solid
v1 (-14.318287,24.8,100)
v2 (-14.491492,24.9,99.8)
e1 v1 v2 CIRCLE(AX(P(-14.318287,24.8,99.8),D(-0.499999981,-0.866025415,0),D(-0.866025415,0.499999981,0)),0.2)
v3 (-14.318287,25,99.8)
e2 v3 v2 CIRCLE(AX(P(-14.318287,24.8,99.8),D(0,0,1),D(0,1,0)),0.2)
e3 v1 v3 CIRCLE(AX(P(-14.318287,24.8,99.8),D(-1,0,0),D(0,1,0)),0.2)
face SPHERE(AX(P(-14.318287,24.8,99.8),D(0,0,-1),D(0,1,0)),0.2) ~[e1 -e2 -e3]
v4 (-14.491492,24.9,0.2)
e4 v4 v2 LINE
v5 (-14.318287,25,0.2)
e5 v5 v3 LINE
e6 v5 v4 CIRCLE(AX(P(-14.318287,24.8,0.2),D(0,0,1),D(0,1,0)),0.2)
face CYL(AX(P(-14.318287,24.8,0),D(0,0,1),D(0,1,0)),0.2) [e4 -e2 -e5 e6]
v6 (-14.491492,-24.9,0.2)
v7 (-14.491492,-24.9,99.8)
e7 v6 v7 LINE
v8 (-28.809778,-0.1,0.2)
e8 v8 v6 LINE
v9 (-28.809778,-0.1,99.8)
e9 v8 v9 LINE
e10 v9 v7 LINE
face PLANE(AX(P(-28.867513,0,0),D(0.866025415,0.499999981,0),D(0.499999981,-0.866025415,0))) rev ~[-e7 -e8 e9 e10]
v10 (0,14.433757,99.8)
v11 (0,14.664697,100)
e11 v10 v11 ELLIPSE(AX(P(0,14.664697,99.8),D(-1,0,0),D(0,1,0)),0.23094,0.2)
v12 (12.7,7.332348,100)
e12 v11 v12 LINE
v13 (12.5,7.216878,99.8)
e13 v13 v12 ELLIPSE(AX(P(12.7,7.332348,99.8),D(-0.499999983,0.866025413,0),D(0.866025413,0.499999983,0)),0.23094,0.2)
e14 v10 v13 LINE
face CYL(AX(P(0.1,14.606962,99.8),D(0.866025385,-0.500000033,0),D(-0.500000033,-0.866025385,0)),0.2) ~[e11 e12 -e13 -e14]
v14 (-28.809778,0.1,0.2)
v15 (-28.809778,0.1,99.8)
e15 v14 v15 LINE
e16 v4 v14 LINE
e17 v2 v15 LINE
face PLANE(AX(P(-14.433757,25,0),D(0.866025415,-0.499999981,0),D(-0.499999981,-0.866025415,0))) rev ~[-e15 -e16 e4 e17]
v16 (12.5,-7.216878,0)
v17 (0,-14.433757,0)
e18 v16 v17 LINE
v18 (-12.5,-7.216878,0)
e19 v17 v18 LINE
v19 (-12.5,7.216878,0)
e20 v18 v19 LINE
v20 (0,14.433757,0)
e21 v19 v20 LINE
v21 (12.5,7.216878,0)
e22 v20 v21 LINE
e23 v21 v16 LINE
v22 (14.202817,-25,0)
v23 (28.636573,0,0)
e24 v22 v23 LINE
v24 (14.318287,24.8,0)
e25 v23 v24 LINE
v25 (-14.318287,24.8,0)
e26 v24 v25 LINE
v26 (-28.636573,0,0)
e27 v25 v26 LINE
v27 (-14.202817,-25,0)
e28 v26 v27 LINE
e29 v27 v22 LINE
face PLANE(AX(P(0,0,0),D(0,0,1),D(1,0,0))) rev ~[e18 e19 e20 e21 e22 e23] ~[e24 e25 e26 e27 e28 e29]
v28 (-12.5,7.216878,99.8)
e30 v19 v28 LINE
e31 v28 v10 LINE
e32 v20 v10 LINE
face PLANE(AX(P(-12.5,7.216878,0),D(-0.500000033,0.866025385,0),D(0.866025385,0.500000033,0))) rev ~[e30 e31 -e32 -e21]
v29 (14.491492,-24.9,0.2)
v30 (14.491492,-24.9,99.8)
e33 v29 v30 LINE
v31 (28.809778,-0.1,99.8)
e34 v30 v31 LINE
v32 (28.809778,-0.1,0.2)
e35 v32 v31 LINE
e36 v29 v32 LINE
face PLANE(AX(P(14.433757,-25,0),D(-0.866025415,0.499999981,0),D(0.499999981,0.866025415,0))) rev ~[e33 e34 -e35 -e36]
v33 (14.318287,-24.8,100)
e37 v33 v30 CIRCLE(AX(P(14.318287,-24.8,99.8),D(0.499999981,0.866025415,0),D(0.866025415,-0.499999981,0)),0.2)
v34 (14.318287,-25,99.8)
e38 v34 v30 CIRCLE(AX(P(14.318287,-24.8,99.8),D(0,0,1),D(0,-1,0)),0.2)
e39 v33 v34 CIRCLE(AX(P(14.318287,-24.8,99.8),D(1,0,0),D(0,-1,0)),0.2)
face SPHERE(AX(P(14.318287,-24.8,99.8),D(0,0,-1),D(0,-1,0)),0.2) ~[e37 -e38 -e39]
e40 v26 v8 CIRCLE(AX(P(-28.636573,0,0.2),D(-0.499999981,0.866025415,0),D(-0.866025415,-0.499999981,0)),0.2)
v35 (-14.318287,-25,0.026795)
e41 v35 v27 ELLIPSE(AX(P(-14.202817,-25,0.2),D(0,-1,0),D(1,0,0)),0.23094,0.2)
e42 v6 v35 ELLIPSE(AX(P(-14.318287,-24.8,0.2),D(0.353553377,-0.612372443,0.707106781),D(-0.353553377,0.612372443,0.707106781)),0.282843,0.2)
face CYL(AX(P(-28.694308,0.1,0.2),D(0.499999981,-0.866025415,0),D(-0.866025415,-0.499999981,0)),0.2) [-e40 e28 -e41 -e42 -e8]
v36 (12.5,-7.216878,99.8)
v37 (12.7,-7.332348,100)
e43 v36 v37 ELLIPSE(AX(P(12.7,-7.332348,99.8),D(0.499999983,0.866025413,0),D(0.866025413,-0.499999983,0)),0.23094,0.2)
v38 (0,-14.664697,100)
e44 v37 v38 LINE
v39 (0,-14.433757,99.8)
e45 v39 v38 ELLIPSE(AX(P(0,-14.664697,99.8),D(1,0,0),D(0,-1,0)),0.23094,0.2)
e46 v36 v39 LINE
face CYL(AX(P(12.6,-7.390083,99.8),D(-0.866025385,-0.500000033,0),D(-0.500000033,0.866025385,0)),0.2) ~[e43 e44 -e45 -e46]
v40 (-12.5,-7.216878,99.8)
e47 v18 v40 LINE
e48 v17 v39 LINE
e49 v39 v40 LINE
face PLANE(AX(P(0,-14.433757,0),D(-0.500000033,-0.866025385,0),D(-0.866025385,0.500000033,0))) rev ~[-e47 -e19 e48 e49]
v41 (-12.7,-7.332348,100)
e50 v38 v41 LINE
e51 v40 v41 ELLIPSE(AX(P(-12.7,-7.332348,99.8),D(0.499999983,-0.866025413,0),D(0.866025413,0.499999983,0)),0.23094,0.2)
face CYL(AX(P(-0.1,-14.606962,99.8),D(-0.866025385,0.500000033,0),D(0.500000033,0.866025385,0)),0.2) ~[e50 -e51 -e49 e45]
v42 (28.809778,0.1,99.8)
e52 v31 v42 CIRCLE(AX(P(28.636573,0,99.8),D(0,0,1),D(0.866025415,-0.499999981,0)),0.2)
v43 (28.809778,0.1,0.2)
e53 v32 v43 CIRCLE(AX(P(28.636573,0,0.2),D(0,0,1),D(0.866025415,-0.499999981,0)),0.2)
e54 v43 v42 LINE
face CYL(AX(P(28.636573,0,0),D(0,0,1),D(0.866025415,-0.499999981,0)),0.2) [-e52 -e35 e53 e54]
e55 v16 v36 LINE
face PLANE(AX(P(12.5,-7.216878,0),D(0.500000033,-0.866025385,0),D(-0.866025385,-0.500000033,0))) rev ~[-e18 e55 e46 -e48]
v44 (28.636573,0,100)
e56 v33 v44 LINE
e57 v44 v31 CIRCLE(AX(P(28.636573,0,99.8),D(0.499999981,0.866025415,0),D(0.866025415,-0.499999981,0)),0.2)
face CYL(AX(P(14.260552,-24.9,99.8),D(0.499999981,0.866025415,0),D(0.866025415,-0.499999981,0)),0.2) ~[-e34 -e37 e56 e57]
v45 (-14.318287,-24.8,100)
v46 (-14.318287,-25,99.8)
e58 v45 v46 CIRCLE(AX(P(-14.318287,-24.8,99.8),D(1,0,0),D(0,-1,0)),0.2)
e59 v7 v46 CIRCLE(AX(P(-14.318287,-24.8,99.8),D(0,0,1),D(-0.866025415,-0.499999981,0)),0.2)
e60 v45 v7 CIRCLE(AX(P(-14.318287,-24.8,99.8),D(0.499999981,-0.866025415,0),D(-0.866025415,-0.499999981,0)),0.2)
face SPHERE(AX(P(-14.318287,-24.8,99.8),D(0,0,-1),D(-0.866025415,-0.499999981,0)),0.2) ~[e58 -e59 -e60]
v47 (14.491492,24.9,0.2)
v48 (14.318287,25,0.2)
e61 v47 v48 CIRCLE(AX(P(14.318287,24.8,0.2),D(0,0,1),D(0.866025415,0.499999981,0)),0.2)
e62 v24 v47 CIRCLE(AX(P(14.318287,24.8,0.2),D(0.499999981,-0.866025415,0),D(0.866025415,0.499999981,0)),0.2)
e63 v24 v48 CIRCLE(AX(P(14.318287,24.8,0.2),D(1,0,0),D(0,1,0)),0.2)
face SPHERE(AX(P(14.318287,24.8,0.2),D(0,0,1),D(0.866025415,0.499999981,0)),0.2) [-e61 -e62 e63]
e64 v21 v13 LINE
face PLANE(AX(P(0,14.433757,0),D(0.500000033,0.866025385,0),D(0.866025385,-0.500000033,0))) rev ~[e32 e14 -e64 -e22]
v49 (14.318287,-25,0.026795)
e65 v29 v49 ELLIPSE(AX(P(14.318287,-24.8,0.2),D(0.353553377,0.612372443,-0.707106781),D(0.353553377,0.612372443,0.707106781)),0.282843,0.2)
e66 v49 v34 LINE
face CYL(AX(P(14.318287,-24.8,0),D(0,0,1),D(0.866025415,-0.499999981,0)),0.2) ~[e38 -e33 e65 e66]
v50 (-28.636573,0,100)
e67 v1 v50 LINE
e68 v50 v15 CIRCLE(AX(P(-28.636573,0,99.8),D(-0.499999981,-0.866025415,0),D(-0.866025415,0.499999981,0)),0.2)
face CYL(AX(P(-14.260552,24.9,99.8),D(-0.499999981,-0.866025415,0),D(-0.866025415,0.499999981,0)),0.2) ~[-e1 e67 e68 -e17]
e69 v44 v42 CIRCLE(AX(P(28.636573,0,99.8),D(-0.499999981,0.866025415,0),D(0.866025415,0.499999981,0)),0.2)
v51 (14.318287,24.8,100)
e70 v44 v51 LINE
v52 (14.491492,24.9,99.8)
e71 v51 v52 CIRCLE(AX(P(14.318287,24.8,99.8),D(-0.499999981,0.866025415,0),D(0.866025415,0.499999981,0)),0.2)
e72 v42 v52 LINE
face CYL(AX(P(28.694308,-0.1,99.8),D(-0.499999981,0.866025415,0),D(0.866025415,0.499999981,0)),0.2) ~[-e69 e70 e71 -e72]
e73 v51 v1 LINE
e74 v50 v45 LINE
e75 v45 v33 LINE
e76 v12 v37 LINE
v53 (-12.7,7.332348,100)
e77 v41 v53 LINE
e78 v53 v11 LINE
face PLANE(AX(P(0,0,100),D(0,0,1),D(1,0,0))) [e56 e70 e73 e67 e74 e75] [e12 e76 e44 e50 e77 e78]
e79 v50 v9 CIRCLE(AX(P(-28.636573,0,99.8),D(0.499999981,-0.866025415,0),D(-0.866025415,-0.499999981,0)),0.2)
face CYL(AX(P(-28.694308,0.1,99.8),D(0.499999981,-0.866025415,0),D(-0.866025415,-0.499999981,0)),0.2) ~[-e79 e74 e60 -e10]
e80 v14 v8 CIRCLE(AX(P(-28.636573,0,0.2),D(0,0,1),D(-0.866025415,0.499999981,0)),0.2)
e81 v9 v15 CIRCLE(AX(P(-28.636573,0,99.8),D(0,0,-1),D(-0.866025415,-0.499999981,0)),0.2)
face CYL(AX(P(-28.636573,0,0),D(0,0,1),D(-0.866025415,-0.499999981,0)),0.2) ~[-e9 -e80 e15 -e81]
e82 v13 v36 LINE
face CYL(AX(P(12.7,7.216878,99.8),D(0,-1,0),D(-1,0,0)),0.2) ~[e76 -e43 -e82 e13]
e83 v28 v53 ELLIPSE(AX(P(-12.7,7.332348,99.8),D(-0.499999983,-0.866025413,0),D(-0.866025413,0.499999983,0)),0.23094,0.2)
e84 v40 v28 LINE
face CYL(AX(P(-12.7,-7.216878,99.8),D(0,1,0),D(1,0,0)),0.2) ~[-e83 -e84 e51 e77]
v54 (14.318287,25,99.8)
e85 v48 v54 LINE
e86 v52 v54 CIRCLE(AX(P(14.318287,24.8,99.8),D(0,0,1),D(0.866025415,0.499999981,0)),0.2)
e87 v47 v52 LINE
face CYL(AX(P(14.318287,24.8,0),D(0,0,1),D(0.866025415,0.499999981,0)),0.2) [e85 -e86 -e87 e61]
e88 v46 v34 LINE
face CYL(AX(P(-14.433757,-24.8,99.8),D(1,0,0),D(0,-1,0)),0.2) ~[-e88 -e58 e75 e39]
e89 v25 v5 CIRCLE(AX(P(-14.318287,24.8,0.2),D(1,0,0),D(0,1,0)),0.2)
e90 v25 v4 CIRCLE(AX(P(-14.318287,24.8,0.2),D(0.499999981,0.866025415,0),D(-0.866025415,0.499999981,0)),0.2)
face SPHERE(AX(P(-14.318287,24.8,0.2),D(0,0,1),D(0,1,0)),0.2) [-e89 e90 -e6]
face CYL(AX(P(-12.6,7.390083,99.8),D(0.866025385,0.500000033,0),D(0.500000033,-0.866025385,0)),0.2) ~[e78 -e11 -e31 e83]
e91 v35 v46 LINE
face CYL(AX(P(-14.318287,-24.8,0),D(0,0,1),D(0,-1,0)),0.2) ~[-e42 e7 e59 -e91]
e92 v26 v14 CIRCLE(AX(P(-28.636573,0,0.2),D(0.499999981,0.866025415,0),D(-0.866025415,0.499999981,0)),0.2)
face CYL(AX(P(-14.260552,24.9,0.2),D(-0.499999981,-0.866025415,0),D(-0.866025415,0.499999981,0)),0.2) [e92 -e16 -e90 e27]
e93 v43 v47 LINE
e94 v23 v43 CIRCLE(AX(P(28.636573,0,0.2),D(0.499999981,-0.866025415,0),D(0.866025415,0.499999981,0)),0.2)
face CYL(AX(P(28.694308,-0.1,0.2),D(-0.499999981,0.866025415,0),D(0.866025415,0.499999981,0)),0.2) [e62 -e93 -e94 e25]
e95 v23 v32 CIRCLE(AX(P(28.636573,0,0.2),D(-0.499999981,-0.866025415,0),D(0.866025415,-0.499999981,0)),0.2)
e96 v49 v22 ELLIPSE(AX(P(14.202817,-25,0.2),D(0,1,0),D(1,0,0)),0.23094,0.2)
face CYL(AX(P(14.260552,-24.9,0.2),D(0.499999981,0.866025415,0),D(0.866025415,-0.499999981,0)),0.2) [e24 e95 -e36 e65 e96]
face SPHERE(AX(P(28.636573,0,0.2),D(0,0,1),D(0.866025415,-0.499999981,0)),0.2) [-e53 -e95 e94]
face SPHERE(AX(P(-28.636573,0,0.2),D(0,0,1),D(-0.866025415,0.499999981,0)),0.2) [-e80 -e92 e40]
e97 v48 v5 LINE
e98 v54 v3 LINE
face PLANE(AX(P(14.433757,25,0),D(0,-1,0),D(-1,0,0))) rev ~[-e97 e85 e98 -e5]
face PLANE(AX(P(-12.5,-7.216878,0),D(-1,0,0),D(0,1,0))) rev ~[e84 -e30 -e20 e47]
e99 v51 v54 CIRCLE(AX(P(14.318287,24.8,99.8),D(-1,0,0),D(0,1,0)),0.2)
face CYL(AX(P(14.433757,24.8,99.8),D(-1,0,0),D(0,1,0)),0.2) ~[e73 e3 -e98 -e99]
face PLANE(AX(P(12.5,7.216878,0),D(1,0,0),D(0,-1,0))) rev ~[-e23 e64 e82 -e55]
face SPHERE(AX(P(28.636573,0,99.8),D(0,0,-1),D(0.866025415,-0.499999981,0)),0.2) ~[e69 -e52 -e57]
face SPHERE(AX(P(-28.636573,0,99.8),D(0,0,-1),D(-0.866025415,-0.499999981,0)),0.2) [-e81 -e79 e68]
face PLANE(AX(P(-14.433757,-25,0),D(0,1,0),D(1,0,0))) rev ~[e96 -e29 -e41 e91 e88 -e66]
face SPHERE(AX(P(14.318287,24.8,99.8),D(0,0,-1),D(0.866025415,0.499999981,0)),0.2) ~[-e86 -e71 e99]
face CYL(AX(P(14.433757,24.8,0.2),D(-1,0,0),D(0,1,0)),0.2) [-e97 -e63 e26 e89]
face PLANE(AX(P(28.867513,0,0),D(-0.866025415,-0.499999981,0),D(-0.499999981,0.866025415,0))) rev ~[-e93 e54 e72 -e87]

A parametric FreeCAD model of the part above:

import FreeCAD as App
import Part
import Sketcher
Q = App.Units.Quantity


def edges_at(feature, points):
    """Names of the edges that pass closest to the given points."""
    edges = feature.Shape.Edges
    near = lambda p: min(range(len(edges)), key=lambda i: edges[i].distToShape(Part.Vertex(*p))[0])
    return sorted({f"Edge{near(p) + 1}" for p in points})

doc = App.newDocument("Part")
body = doc.addObject("PartDesign::Body", "Body")

sketch1 = doc.addObject("Sketcher::SketchObject", "Sketch")
body.addObject(sketch1)
sketch1.AttachmentSupport = (doc.XY_Plane, [""])
sketch1.MapMode = "FlatFace"
sketch1.addGeometry([
    Part.LineSegment(App.Vector(14, -25, 0), App.Vector(29, 0, 0)),
    Part.LineSegment(App.Vector(29, 0, 0), App.Vector(14, 25, 0)),
    Part.LineSegment(App.Vector(14, 25, 0), App.Vector(-14, 25, 0)),
    Part.LineSegment(App.Vector(-14, 25, 0), App.Vector(-29, 0, 0)),
    Part.LineSegment(App.Vector(-29, 0, 0), App.Vector(-14, -25, 0)),
    Part.LineSegment(App.Vector(-14, -25, 0), App.Vector(14, -25, 0)),
    Part.LineSegment(App.Vector(-12, -7, 0), App.Vector(-12, 7, 0)),
    Part.LineSegment(App.Vector(-12, 7, 0), App.Vector(0, 14, 0)),
    Part.LineSegment(App.Vector(0, 14, 0), App.Vector(12, 7, 0)),
    Part.LineSegment(App.Vector(12, 7, 0), App.Vector(12, -7, 0)),
    Part.LineSegment(App.Vector(12, -7, 0), App.Vector(0, -14, 0)),
    Part.LineSegment(App.Vector(0, -14, 0), App.Vector(-12, -7, 0)),
], False)
sketch1.addConstraint([
    Sketcher.Constraint("Coincident", 0, 2, 1, 1),
    Sketcher.Constraint("Coincident", 1, 2, 2, 1),
    Sketcher.Constraint("Coincident", 2, 2, 3, 1),
    Sketcher.Constraint("Coincident", 3, 2, 4, 1),
    Sketcher.Constraint("Coincident", 4, 2, 5, 1),
    Sketcher.Constraint("Coincident", 5, 2, 0, 1),
    Sketcher.Constraint("Coincident", 6, 2, 7, 1),
    Sketcher.Constraint("Coincident", 7, 2, 8, 1),
    Sketcher.Constraint("Coincident", 8, 2, 9, 1),
    Sketcher.Constraint("Coincident", 9, 2, 10, 1),
    Sketcher.Constraint("Coincident", 10, 2, 11, 1),
    Sketcher.Constraint("Coincident", 11, 2, 6, 1),
    Sketcher.Constraint("Horizontal", 2),
    Sketcher.Constraint("Horizontal", 5),
    Sketcher.Constraint("Vertical", 6),
    Sketcher.Constraint("Vertical", 9),
    Sketcher.Constraint("Symmetric", 0, 2, 3, 2, -1, 1),
    Sketcher.Constraint("Symmetric", 1, 2, 4, 2, -1, 1),
    Sketcher.Constraint("Symmetric", 6, 2, 9, 2, -1, 1),
    Sketcher.Constraint("Symmetric", 7, 2, 10, 2, -1, 1),
    Sketcher.Constraint("PointOnObject", 0, 2, -1),
    Sketcher.Constraint("PointOnObject", 7, 2, -2),
    Sketcher.Constraint("Parallel", 0, 3),
    Sketcher.Constraint("Perpendicular", 4, 7),
    Sketcher.Constraint("Perpendicular", 3, 8),
    Sketcher.Constraint("Parallel", 8, 11),
    Sketcher.Constraint("Horizontal", 6, 2, 8, 2),
    Sketcher.Constraint("Angle", 0, Q("60.000001 deg")),
    Sketcher.Constraint("DistanceY", -1, 1, 1, 2, 25.0),
    Sketcher.Constraint("DistanceX", 6, 2, 8, 2, 25.0),
    Sketcher.Constraint("DistanceX", 2, 2, 2, 1, 28.867514),
    Sketcher.Constraint("DistanceY", 6, 1, 6, 2, 14.433756),
])
pad1 = doc.addObject("PartDesign::Pad", "Pad")
body.addObject(pad1)
pad1.Profile = sketch1
pad1.Length = 100
doc.recompute()

fillet = doc.addObject("PartDesign::Fillet", "Fillet")
body.addObject(fillet)
fillet.Base = (pad1, edges_at(pad1, [
    (-21.651, -12.5, 100),
    (0, -25, 100),
    (21.651, -12.5, 100),
    (21.651, 12.5, 100),
    (0, 25, 100),
    (-21.651, 12.5, 100),
    (-12.5, 0, 100),
    (-6.25, 10.825, 100),
    (6.25, 10.825, 100),
    (12.5, 0, 100),
    (6.25, -10.825, 100),
    (-6.25, -10.825, 100),
    (14.434, -25, 50),
    (28.868, 0, 50),
    (21.651, -12.5, 0),
    (14.434, 25, 50),
    (21.651, 12.5, 0),
    (-14.434, 25, 50),
    (0, 25, 0),
    (-28.868, 0, 50),
    (-21.651, 12.5, 0),
    (-14.434, -25, 50),
    (-21.651, -12.5, 0),
]))
fillet.Radius = 0.2

doc.recompute()
